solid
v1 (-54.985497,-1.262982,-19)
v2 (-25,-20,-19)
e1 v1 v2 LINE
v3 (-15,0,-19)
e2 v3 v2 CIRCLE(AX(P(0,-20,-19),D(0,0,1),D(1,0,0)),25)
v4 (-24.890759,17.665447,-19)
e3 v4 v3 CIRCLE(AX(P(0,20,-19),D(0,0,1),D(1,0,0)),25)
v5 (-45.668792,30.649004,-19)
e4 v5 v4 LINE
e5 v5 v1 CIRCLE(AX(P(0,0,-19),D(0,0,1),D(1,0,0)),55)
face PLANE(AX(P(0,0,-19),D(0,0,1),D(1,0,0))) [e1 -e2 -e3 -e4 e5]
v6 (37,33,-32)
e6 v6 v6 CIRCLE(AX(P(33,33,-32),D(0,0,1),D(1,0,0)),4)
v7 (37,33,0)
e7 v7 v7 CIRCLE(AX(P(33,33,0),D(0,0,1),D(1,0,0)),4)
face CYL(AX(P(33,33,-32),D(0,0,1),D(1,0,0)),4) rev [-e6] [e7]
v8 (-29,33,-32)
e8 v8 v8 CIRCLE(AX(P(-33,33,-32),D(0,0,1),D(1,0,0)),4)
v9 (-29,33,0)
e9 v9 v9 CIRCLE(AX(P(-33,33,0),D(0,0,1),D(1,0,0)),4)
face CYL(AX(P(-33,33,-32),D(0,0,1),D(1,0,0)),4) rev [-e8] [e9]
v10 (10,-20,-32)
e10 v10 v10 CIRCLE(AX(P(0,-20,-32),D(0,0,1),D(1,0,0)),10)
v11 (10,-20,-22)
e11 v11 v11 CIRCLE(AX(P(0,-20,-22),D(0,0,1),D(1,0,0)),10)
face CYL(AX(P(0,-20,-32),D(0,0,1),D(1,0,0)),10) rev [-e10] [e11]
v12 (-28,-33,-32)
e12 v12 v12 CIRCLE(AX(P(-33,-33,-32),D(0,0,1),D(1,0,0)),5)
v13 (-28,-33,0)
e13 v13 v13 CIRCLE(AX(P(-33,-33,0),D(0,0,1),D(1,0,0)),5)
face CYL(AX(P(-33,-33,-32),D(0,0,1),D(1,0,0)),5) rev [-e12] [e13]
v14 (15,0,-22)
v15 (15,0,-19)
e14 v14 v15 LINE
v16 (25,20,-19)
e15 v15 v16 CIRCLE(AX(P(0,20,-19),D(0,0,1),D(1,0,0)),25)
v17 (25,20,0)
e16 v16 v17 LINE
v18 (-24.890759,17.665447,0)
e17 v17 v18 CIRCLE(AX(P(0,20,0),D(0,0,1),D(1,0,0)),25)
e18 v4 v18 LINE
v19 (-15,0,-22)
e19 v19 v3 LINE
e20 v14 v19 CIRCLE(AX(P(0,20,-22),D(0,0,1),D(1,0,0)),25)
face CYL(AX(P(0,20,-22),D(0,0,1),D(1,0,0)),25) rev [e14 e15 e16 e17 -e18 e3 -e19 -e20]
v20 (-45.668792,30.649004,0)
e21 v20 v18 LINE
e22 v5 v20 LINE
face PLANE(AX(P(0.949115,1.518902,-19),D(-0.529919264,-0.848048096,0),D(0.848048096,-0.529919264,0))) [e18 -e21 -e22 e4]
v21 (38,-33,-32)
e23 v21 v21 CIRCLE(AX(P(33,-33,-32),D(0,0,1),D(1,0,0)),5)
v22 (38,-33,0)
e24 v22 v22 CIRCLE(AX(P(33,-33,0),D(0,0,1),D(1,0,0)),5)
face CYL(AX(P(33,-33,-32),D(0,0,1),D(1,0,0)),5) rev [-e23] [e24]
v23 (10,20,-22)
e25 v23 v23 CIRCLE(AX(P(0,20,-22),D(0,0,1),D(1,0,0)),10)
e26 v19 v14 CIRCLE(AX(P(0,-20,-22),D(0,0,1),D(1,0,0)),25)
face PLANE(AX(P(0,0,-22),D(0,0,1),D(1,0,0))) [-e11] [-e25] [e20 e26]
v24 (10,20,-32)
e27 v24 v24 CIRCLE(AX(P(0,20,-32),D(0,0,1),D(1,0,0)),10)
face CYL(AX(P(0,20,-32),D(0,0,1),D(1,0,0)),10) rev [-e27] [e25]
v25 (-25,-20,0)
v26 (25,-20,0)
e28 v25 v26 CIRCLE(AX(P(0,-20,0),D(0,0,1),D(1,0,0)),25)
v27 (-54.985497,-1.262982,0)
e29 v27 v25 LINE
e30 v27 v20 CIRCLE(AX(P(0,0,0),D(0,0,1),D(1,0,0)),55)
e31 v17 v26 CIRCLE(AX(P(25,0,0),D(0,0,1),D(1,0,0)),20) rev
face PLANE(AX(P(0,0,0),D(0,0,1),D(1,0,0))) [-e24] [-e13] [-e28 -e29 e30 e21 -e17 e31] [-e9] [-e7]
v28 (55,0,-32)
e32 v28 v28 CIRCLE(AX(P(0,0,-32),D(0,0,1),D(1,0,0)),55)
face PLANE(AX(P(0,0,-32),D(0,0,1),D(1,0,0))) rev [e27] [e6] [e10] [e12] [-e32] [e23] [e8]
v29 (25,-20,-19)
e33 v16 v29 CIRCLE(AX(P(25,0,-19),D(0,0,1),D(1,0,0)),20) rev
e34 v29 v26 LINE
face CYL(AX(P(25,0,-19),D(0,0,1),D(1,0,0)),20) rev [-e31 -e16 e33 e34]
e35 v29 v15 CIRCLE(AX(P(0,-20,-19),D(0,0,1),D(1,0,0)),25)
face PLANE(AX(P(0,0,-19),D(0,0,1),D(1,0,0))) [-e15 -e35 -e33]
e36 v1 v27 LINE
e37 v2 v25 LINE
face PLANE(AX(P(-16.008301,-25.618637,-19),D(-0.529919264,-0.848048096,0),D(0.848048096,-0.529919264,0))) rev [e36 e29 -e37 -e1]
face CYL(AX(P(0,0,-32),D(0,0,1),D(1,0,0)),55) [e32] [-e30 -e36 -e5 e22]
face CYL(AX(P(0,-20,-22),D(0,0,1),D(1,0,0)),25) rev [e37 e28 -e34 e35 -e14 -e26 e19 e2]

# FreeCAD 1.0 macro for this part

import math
import FreeCAD as App
import Part
import Sketcher
Q = App.Units.Quantity

doc = App.newDocument("Part")
body = doc.addObject("PartDesign::Body", "Body")

sketch1 = body.newObject("Sketcher::SketchObject", "Sketch")
sketch1.AttachmentSupport = (doc.getObject("XY_Plane"), [""])
sketch1.MapMode = "FlatFace"
sketch1.addGeometry(Part.Circle(App.Vector(0, 0, 0), App.Vector(0, 0, 1), 55), False)
sketch1.addConstraint([
    Sketcher.Constraint("Coincident", 0, 3, -1, 1),
    Sketcher.Constraint("Diameter", 0, 110.0),
])
pad1 = body.newObject("PartDesign::Pad", "Pad")
pad1.Profile = sketch1
pad1.Length = 32
pad1.Reversed = True

sketch2 = body.newObject("Sketcher::SketchObject", "Sketch001")
sketch2.AttachmentSupport = (doc.getObject("XY_Plane"), [""])
sketch2.MapMode = "FlatFace"
sketch2.addGeometry([
    Part.ArcOfCircle(Part.Circle(App.Vector(0, 20, 0), App.Vector(0, 0, 1), 25), math.radians(-53), math.radians(233)),
    Part.ArcOfCircle(Part.Circle(App.Vector(0, -20, 0), App.Vector(0, 0, 1), 25), math.radians(127), math.radians(413)),
], False)
sketch2.addConstraint([
    Sketcher.Constraint("Coincident", 0, 1, 1, 2),
    Sketcher.Constraint("Coincident", 1, 1, 0, 2),
    Sketcher.Constraint("Equal", 0, 1),
    Sketcher.Constraint("Symmetric", 0, 3, 1, 3, -1, 1),
    Sketcher.Constraint("PointOnObject", 0, 3, -2),
    Sketcher.Constraint("Radius", 0, 25.0),
    Sketcher.Constraint("DistanceY", -1, 1, 0, 3, 20.0),
])
pocket1 = body.newObject("PartDesign::Pocket", "Pocket")
pocket1.Profile = sketch2
pocket1.Length = 22

sketch3 = body.newObject("Sketcher::SketchObject", "Sketch002")
sketch3.AttachmentSupport = (doc.getObject("XY_Plane"), [""])
sketch3.MapMode = "FlatFace"
sketch3.addGeometry([
    Part.ArcOfCircle(Part.Circle(App.Vector(0, 0, 0), App.Vector(0, 0, 1), 55), math.radians(146), math.radians(181)),
    Part.LineSegment(App.Vector(-55, -1, 0), App.Vector(-25, -20, 0)),
    Part.ArcOfCircle(Part.Circle(App.Vector(0, -20, 0), App.Vector(0, 0, 1), 25), math.radians(127), math.radians(180)),
    Part.ArcOfCircle(Part.Circle(App.Vector(0, 20, 0), App.Vector(0, 0, 1), 25), math.radians(-175), math.radians(-127)),
    Part.LineSegment(App.Vector(-25, 18, 0), App.Vector(-46, 31, 0)),
    Part.ArcOfCircle(Part.Circle(App.Vector(0, -20, 0), App.Vector(0, 0, 1), 25), math.radians(0), math.radians(53)),
    Part.ArcOfCircle(Part.Circle(App.Vector(25, 0, 0), App.Vector(0, 0, 1), 20), math.radians(-90), math.radians(90)),
    Part.ArcOfCircle(Part.Circle(App.Vector(0, 20, 0), App.Vector(0, 0, 1), 25), math.radians(-53), math.radians(0)),
], False)
sketch3.addConstraint([
    Sketcher.Constraint("Coincident", 0, 2, 1, 1),
    Sketcher.Constraint("Coincident", 1, 2, 2, 2),
    Sketcher.Constraint("Coincident", 2, 1, 3, 2),
    Sketcher.Constraint("Coincident", 3, 1, 4, 1),
    Sketcher.Constraint("Coincident", 4, 2, 0, 1),
    Sketcher.Constraint("Coincident", 5, 1, 6, 1),
    Sketcher.Constraint("Coincident", 6, 2, 7, 2),
    Sketcher.Constraint("Coincident", 7, 1, 5, 2),
    Sketcher.Constraint("Coincident", 0, 3, -1, 1),
    Sketcher.Constraint("Coincident", 5, 3, 2, 3),
    Sketcher.Constraint("Coincident", 7, 3, 3, 3),
    Sketcher.Constraint("Equal", 2, 3),
    Sketcher.Constraint("Equal", 3, 5),
    Sketcher.Constraint("Equal", 5, 7),
    Sketcher.Constraint("Symmetric", 2, 3, 3, 3, -1, 1),
    Sketcher.Constraint("Symmetric", 1, 2, 5, 1, -2),
    Sketcher.Constraint("PointOnObject", 6, 3, -1),
    Sketcher.Constraint("Parallel", 1, 4),
    Sketcher.Constraint("Horizontal", 5, 3, 1, 2),
    Sketcher.Constraint("Vertical", 6, 3, 5, 1),
    Sketcher.Constraint("Radius", 0, 55.0),
    Sketcher.Constraint("Radius", 2, 25.0),
    Sketcher.Constraint("Radius", 6, 20.0),
    Sketcher.Constraint("Angle", 1, Q("-32 deg")),
    Sketcher.Constraint("Distance", 4, 24.501008),
])
pocket2 = body.newObject("PartDesign::Pocket", "Pocket001")
pocket2.Profile = sketch3
pocket2.Length = 19

sketch4 = body.newObject("Sketcher::SketchObject", "Sketch003")
sketch4.AttachmentSupport = (doc.getObject("XY_Plane"), [""])
sketch4.MapMode = "FlatFace"
sketch4.addGeometry([
    Part.Circle(App.Vector(0, 20, 0), App.Vector(0, 0, 1), 10),
    Part.Circle(App.Vector(0, -20, 0), App.Vector(0, 0, 1), 10),
    Part.Circle(App.Vector(-33, 33, 0), App.Vector(0, 0, 1), 4),
    Part.Circle(App.Vector(33, 33, 0), App.Vector(0, 0, 1), 4),
    Part.Circle(App.Vector(33, -33, 0), App.Vector(0, 0, 1), 5),
    Part.Circle(App.Vector(-33, -33, 0), App.Vector(0, 0, 1), 5),
], False)
sketch4.addConstraint([
    Sketcher.Constraint("Equal", 0, 1),
    Sketcher.Constraint("Equal", 2, 3),
    Sketcher.Constraint("Equal", 4, 5),
    Sketcher.Constraint("Symmetric", 0, 3, 1, 3, -1, 1),
    Sketcher.Constraint("Symmetric", 2, 3, 4, 3, -1, 1),
    Sketcher.Constraint("Symmetric", 3, 3, 5, 3, -1, 1),
    Sketcher.Constraint("Symmetric", 2, 3, 3, 3, -2),
    Sketcher.Constraint("PointOnObject", 0, 3, -2),
    Sketcher.Constraint("Diameter", 0, 20.0),
    Sketcher.Constraint("Diameter", 2, 8.0),
    Sketcher.Constraint("Diameter", 4, 10.0),
    Sketcher.Constraint("DistanceY", -1, 1, 0, 3, 20.0),
    Sketcher.Constraint("DistanceX", 2, 3, -1, 1, 33.0),
    Sketcher.Constraint("DistanceY", -1, 1, 2, 3, 33.0),
])
pocket3 = body.newObject("PartDesign::Pocket", "Pocket002")
pocket3.Profile = sketch4
pocket3.Type = "ThroughAll"

doc.recompute()
